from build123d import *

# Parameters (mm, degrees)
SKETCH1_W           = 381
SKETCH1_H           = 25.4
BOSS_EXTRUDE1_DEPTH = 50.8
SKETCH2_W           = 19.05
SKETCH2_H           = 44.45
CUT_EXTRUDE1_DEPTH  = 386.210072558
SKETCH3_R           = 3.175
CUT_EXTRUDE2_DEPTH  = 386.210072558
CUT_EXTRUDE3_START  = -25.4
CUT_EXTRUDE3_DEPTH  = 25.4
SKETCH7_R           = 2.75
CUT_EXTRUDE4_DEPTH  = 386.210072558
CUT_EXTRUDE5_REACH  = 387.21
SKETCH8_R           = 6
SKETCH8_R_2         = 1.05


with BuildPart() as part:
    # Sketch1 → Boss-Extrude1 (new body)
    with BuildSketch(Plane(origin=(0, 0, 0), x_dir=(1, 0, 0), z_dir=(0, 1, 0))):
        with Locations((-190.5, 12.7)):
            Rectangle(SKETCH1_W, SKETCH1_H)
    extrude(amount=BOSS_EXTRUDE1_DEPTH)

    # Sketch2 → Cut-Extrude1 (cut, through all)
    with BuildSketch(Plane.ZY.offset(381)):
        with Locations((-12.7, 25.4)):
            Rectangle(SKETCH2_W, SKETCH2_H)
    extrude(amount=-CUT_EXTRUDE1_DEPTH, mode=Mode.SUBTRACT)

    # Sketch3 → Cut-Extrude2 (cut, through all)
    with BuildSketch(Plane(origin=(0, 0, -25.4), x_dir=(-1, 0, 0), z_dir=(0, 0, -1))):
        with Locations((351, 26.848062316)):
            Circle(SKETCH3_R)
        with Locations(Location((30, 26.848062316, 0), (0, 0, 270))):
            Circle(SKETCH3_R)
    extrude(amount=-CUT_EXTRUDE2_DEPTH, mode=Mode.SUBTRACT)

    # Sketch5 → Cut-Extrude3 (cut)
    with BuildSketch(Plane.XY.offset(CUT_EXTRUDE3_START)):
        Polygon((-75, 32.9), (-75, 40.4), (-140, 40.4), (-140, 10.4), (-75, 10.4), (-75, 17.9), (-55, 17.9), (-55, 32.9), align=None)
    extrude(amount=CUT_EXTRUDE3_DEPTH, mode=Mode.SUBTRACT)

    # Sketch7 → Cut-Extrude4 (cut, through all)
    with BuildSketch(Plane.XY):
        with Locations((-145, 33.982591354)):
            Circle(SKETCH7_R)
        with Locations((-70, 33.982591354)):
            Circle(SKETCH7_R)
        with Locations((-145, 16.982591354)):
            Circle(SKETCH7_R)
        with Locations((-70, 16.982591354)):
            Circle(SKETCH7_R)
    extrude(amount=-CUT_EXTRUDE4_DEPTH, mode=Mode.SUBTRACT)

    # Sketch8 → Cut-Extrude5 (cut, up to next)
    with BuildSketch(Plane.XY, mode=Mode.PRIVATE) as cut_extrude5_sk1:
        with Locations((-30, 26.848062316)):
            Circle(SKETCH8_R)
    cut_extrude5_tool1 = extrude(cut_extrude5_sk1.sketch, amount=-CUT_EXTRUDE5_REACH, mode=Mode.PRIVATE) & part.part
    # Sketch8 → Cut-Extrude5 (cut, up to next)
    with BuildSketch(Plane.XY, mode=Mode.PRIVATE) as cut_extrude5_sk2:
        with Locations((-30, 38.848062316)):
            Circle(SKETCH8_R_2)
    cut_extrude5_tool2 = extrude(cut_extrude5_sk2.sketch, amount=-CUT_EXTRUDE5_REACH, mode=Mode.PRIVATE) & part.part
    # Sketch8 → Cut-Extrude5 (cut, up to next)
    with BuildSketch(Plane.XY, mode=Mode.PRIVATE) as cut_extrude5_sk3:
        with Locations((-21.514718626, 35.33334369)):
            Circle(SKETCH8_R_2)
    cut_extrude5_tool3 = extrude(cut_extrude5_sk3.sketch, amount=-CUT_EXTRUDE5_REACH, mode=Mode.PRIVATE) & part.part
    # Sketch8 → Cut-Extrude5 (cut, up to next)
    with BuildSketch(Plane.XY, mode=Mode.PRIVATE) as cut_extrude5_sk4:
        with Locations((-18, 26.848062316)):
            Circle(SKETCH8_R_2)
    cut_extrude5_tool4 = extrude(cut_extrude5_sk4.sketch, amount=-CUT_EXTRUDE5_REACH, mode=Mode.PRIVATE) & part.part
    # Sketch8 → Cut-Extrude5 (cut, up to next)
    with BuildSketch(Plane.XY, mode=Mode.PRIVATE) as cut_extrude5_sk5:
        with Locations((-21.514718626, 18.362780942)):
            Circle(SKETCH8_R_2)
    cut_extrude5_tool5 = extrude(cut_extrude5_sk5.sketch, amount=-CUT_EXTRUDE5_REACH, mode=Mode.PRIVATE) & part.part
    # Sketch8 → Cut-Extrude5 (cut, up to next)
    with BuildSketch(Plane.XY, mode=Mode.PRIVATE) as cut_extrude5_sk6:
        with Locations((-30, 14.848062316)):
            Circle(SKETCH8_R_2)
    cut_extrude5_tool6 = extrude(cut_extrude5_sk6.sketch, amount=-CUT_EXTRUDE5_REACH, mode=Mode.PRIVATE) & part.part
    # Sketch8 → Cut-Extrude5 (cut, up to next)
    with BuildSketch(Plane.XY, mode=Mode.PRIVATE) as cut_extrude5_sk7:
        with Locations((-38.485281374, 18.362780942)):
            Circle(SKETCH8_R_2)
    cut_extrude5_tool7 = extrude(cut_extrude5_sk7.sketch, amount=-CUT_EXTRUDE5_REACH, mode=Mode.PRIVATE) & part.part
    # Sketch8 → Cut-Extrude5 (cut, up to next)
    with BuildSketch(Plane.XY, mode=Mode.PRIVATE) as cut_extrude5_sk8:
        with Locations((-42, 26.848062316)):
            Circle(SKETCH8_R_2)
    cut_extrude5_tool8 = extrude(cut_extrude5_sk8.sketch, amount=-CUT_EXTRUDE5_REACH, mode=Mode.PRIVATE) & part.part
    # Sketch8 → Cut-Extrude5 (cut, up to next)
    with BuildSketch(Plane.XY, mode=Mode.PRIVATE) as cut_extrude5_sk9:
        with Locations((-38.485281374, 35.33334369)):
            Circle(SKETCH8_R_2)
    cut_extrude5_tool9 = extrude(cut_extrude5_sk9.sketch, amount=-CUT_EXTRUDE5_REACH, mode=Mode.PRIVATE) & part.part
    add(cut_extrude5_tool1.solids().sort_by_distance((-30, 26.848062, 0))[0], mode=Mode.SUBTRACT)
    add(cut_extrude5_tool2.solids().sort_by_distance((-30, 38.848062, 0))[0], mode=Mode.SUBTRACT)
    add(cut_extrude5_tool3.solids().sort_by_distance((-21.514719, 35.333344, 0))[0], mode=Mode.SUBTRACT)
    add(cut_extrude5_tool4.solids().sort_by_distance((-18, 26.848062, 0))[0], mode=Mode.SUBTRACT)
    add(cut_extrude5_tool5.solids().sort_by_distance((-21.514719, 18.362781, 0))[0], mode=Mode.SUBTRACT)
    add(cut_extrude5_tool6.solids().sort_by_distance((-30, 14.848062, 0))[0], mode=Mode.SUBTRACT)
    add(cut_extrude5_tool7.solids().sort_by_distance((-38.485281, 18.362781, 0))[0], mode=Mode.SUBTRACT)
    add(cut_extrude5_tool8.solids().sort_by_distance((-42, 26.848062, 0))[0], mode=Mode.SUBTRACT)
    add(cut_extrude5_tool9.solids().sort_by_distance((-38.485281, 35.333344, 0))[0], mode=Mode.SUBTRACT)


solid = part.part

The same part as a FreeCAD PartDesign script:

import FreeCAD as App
import Part
import Sketcher

V = App.Vector

doc = App.newDocument("Part")
body = doc.addObject("PartDesign::Body", "Body")

# Sketch on XZ plane
sketch1 = doc.addObject("Sketcher::SketchObject", "Sketch")
body.addObject(sketch1)
sketch1.AttachmentSupport = (doc.XZ_Plane, [""])
sketch1.MapMode = "FlatFace"
sketch1.addGeometry(Part.LineSegment(V(-381, -25, 0), V(-381, 0, 0)), False)
sketch1.addGeometry(Part.LineSegment(V(-381, 0, 0), V(0, 0, 0)), False)
sketch1.addGeometry(Part.LineSegment(V(0, 0, 0), V(0, -25, 0)), False)
sketch1.addGeometry(Part.LineSegment(V(0, -25, 0), V(-381, -25, 0)), False)
sketch1.addConstraint(Sketcher.Constraint("Coincident", 0, 2, 1, 1))
sketch1.addConstraint(Sketcher.Constraint("Coincident", 1, 2, 2, 1))
sketch1.addConstraint(Sketcher.Constraint("Coincident", 2, 2, 3, 1))
sketch1.addConstraint(Sketcher.Constraint("Coincident", 3, 2, 0, 1))
sketch1.addConstraint(Sketcher.Constraint("Vertical", 0))
sketch1.addConstraint(Sketcher.Constraint("Horizontal", 1))
sketch1.addConstraint(Sketcher.Constraint("Vertical", 2))
sketch1.addConstraint(Sketcher.Constraint("Horizontal", 3))
sketch1.addConstraint(Sketcher.Constraint("Coincident", 1, 2, -1, 1))
sketch1.addConstraint(Sketcher.Constraint("DistanceX", 1, 1, 1, 2, 381.0))
sketch1.addConstraint(Sketcher.Constraint("DistanceY", 0, 1, 0, 2, 25.4))
pad1 = doc.addObject("PartDesign::Pad", "Pad")
body.addObject(pad1)
pad1.Profile = sketch1
pad1.Length = 50.8
pad1.Reversed = True

# Sketch on YZ plane
sketch2 = doc.addObject("Sketcher::SketchObject", "Sketch001")
body.addObject(sketch2)
sketch2.AttachmentSupport = (doc.YZ_Plane, [""])
sketch2.MapMode = "FlatFace"
sketch2.AttachmentOffset = App.Placement(V(0, 0, -381), App.Rotation())
sketch2.addGeometry(Part.LineSegment(V(48, -22, 0), V(3, -22, 0)), False)
sketch2.addGeometry(Part.LineSegment(V(3, -22, 0), V(3, -3, 0)), False)
sketch2.addGeometry(Part.LineSegment(V(3, -3, 0), V(48, -3, 0)), False)
sketch2.addGeometry(Part.LineSegment(V(48, -3, 0), V(48, -22, 0)), False)
sketch2.addConstraint(Sketcher.Constraint("Coincident", 0, 2, 1, 1))
sketch2.addConstraint(Sketcher.Constraint("Coincident", 1, 2, 2, 1))
sketch2.addConstraint(Sketcher.Constraint("Coincident", 2, 2, 3, 1))
sketch2.addConstraint(Sketcher.Constraint("Coincident", 3, 2, 0, 1))
sketch2.addConstraint(Sketcher.Constraint("Horizontal", 0))
sketch2.addConstraint(Sketcher.Constraint("Vertical", 1))
sketch2.addConstraint(Sketcher.Constraint("Horizontal", 2))
sketch2.addConstraint(Sketcher.Constraint("Vertical", 3))
sketch2.addConstraint(Sketcher.Constraint("DistanceX", 0, 2, 0, 1, 44.45))
sketch2.addConstraint(Sketcher.Constraint("DistanceY", 1, 1, 1, 2, 19.05))
sketch2.addConstraint(Sketcher.Constraint("DistanceX", -1, 1, 0, 2, 3.175))
sketch2.addConstraint(Sketcher.Constraint("DistanceY", 0, 2, -1, 1, 22.225))
pocket1 = doc.addObject("PartDesign::Pocket", "Pocket")
body.addObject(pocket1)
pocket1.Profile = sketch2
pocket1.Type = "ThroughAll"
pocket1.Reversed = True

# Sketch on XY plane
sketch3 = doc.addObject("Sketcher::SketchObject", "Sketch002")
body.addObject(sketch3)
sketch3.AttachmentSupport = (doc.XY_Plane, [""])
sketch3.MapMode = "FlatFace"
sketch3.AttachmentOffset = App.Placement(V(0, 0, -25.4), App.Rotation())
sketch3.addGeometry(Part.Circle(V(-351, 26.8, 0), V(0, 0, 1), 3.2), False)
sketch3.addGeometry(Part.Circle(V(-30, 26.8, 0), V(0, 0, 1), 3.2), False)
sketch3.addConstraint(Sketcher.Constraint("Equal", 0, 1))
sketch3.addConstraint(Sketcher.Constraint("Horizontal", 0, 3, 1, 3))
sketch3.addConstraint(Sketcher.Constraint("Diameter", 0, 6.35))
sketch3.addConstraint(Sketcher.Constraint("DistanceX", 0, 3, -1, 1, 351.0))
sketch3.addConstraint(Sketcher.Constraint("DistanceX", 1, 3, -1, 1, 30.0))
sketch3.addConstraint(Sketcher.Constraint("DistanceY", -1, 1, 0, 3, 26.848062))
pocket2 = doc.addObject("PartDesign::Pocket", "Pocket001")
body.addObject(pocket2)
pocket2.Profile = sketch3
pocket2.Type = "ThroughAll"
pocket2.Reversed = True

# Sketch on XY plane
sketch4 = doc.addObject("Sketcher::SketchObject", "Sketch003")
body.addObject(sketch4)
sketch4.AttachmentSupport = (doc.XY_Plane, [""])
sketch4.MapMode = "FlatFace"
sketch4.AttachmentOffset = App.Placement(V(0, 0, -25.4), App.Rotation())
sketch4.addGeometry(Part.LineSegment(V(-75, 33, 0), V(-75, 40, 0)), False)
sketch4.addGeometry(Part.LineSegment(V(-75, 40, 0), V(-140, 40, 0)), False)
sketch4.addGeometry(Part.LineSegment(V(-140, 40, 0), V(-140, 10, 0)), False)
sketch4.addGeometry(Part.LineSegment(V(-140, 10, 0), V(-75, 10, 0)), False)
sketch4.addGeometry(Part.LineSegment(V(-75, 10, 0), V(-75, 18, 0)), False)
sketch4.addGeometry(Part.LineSegment(V(-75, 18, 0), V(-55, 18, 0)), False)
sketch4.addGeometry(Part.LineSegment(V(-55, 18, 0), V(-55, 33, 0)), False)
sketch4.addGeometry(Part.LineSegment(V(-55, 33, 0), V(-75, 33, 0)), False)
sketch4.addConstraint(Sketcher.Constraint("Coincident", 0, 2, 1, 1))
sketch4.addConstraint(Sketcher.Constraint("Coincident", 1, 2, 2, 1))
sketch4.addConstraint(Sketcher.Constraint("Coincident", 2, 2, 3, 1))
sketch4.addConstraint(Sketcher.Constraint("Coincident", 3, 2, 4, 1))
sketch4.addConstraint(Sketcher.Constraint("Coincident", 4, 2, 5, 1))
sketch4.addConstraint(Sketcher.Constraint("Coincident", 5, 2, 6, 1))
sketch4.addConstraint(Sketcher.Constraint("Coincident", 6, 2, 7, 1))
sketch4.addConstraint(Sketcher.Constraint("Coincident", 7, 2, 0, 1))
sketch4.addConstraint(Sketcher.Constraint("Vertical", 0))
sketch4.addConstraint(Sketcher.Constraint("Horizontal", 1))
sketch4.addConstraint(Sketcher.Constraint("Vertical", 2))
sketch4.addConstraint(Sketcher.Constraint("Horizontal", 3))
sketch4.addConstraint(Sketcher.Constraint("Vertical", 4))
sketch4.addConstraint(Sketcher.Constraint("Horizontal", 5))
sketch4.addConstraint(Sketcher.Constraint("Vertical", 6))
sketch4.addConstraint(Sketcher.Constraint("Horizontal", 7))
sketch4.addConstraint(Sketcher.Constraint("Vertical", 0, 2, 3, 2))
sketch4.addConstraint(Sketcher.Constraint("Equal", 0, 4))
sketch4.addConstraint(Sketcher.Constraint("DistanceX", 1, 2, 1, 1, 65.0))
sketch4.addConstraint(Sketcher.Constraint("DistanceX", 5, 1, 5, 2, 20.0))
sketch4.addConstraint(Sketcher.Constraint("DistanceY", 2, 2, 2, 1, 30.0))
sketch4.addConstraint(Sketcher.Constraint("DistanceY", 6, 1, 6, 2, 15.0))
sketch4.addConstraint(Sketcher.Constraint("DistanceX", 0, 2, -1, 1, 75.0))
sketch4.addConstraint(Sketcher.Constraint("DistanceY", -1, 1, 0, 2, 40.4))
pocket3 = doc.addObject("PartDesign::Pocket", "Pocket002")
body.addObject(pocket3)
pocket3.Profile = sketch4
pocket3.Length = 25.4
pocket3.Reversed = True

# Sketch on XY plane
sketch5 = doc.addObject("Sketcher::SketchObject", "Sketch004")
body.addObject(sketch5)
sketch5.AttachmentSupport = (doc.XY_Plane, [""])
sketch5.MapMode = "FlatFace"
sketch5.addGeometry(Part.Circle(V(-145, 34, 0), V(0, 0, 1), 2.8), False)
sketch5.addGeometry(Part.Circle(V(-70, 34, 0), V(0, 0, 1), 2.8), False)
sketch5.addGeometry(Part.Circle(V(-145, 17, 0), V(0, 0, 1), 2.8), False)
sketch5.addGeometry(Part.Circle(V(-70, 17, 0), V(0, 0, 1), 2.8), False)
sketch5.addConstraint(Sketcher.Constraint("Equal", 0, 1))
sketch5.addConstraint(Sketcher.Constraint("Equal", 1, 2))
sketch5.addConstraint(Sketcher.Constraint("Equal", 2, 3))
sketch5.addConstraint(Sketcher.Constraint("Horizontal", 0, 3, 1, 3))
sketch5.addConstraint(Sketcher.Constraint("Horizontal", 2, 3, 3, 3))
sketch5.addConstraint(Sketcher.Constraint("Vertical", 0, 3, 2, 3))
sketch5.addConstraint(Sketcher.Constraint("Vertical", 1, 3, 3, 3))
sketch5.addConstraint(Sketcher.Constraint("Diameter", 0, 5.5))
sketch5.addConstraint(Sketcher.Constraint("DistanceX", 0, 3, -1, 1, 145.0))
sketch5.addConstraint(Sketcher.Constraint("DistanceX", 1, 3, -1, 1, 70.0))
sketch5.addConstraint(Sketcher.Constraint("DistanceY", 2, 3, 0, 3, 17.0))
sketch5.addConstraint(Sketcher.Constraint("DistanceY", -1, 1, 0, 3, 33.982591))
pocket4 = doc.addObject("PartDesign::Pocket", "Pocket003")
body.addObject(pocket4)
pocket4.Profile = sketch5
pocket4.Type = "ThroughAll"

# Sketch on XY plane
sketch6 = doc.addObject("Sketcher::SketchObject", "Sketch005")
body.addObject(sketch6)
sketch6.AttachmentSupport = (doc.XY_Plane, [""])
sketch6.MapMode = "FlatFace"
sketch6.addGeometry(Part.Circle(V(-30, 27, 0), V(0, 0, 1), 6), False)
sketch6.addConstraint(Sketcher.Constraint("Diameter", 0, 12.0))
sketch6.addConstraint(Sketcher.Constraint("DistanceX", 0, 3, -1, 1, 30.0))
sketch6.addConstraint(Sketcher.Constraint("DistanceY", -1, 1, 0, 3, 26.848062))
pocket5 = doc.addObject("PartDesign::Pocket", "Pocket004")
body.addObject(pocket5)
pocket5.Profile = sketch6
pocket5.Length = 3.175

# Sketch on XY plane
sketch7 = doc.addObject("Sketcher::SketchObject", "Sketch006")
body.addObject(sketch7)
sketch7.AttachmentSupport = (doc.XY_Plane, [""])
sketch7.MapMode = "FlatFace"
sketch7.addGeometry(Part.Circle(V(-30, 38.8, 0), V(0, 0, 1), 1.1), False)
sketch7.addConstraint(Sketcher.Constraint("Diameter", 0, 2.1))
sketch7.addConstraint(Sketcher.Constraint("DistanceX", 0, 3, -1, 1, 30.0))
sketch7.addConstraint(Sketcher.Constraint("DistanceY", -1, 1, 0, 3, 38.848062))
pocket6 = doc.addObject("PartDesign::Pocket", "Pocket005")
body.addObject(pocket6)
pocket6.Profile = sketch7
pocket6.Type = "UpToFirst"

# Sketch on XY plane
sketch8 = doc.addObject("Sketcher::SketchObject", "Sketch007")
body.addObject(sketch8)
sketch8.AttachmentSupport = (doc.XY_Plane, [""])
sketch8.MapMode = "FlatFace"
sketch8.addGeometry(Part.Circle(V(-21.5, 35.3, 0), V(0, 0, 1), 1.1), False)
sketch8.addConstraint(Sketcher.Constraint("Diameter", 0, 2.1))
sketch8.addConstraint(Sketcher.Constraint("DistanceX", 0, 3, -1, 1, 21.514719))
sketch8.addConstraint(Sketcher.Constraint("DistanceY", -1, 1, 0, 3, 35.333344))
pocket7 = doc.addObject("PartDesign::Pocket", "Pocket006")
body.addObject(pocket7)
pocket7.Profile = sketch8
pocket7.Type = "UpToFirst"

# Sketch on XY plane
sketch9 = doc.addObject("Sketcher::SketchObject", "Sketch008")
body.addObject(sketch9)
sketch9.AttachmentSupport = (doc.XY_Plane, [""])
sketch9.MapMode = "FlatFace"
sketch9.addGeometry(Part.Circle(V(-18, 26.8, 0), V(0, 0, 1), 1.1), False)
sketch9.addConstraint(Sketcher.Constraint("Diameter", 0, 2.1))
sketch9.addConstraint(Sketcher.Constraint("DistanceX", 0, 3, -1, 1, 18.0))
sketch9.addConstraint(Sketcher.Constraint("DistanceY", -1, 1, 0, 3, 26.848062))
pocket8 = doc.addObject("PartDesign::Pocket", "Pocket007")
body.addObject(pocket8)
pocket8.Profile = sketch9
pocket8.Type = "UpToFirst"

# Sketch on XY plane
sketch10 = doc.addObject("Sketcher::SketchObject", "Sketch009")
body.addObject(sketch10)
sketch10.AttachmentSupport = (doc.XY_Plane, [""])
sketch10.MapMode = "FlatFace"
sketch10.addGeometry(Part.Circle(V(-21.5, 18.4, 0), V(0, 0, 1), 1.1), False)
sketch10.addConstraint(Sketcher.Constraint("Diameter", 0, 2.1))
sketch10.addConstraint(Sketcher.Constraint("DistanceX", 0, 3, -1, 1, 21.514719))
sketch10.addConstraint(Sketcher.Constraint("DistanceY", -1, 1, 0, 3, 18.362781))
pocket9 = doc.addObject("PartDesign::Pocket", "Pocket008")
body.addObject(pocket9)
pocket9.Profile = sketch10
pocket9.Type = "UpToFirst"

# Sketch on XY plane
sketch11 = doc.addObject("Sketcher::SketchObject", "Sketch010")
body.addObject(sketch11)
sketch11.AttachmentSupport = (doc.XY_Plane, [""])
sketch11.MapMode = "FlatFace"
sketch11.addGeometry(Part.Circle(V(-30, 14.8, 0), V(0, 0, 1), 1.1), False)
sketch11.addConstraint(Sketcher.Constraint("Diameter", 0, 2.1))
sketch11.addConstraint(Sketcher.Constraint("DistanceX", 0, 3, -1, 1, 30.0))
sketch11.addConstraint(Sketcher.Constraint("DistanceY", -1, 1, 0, 3, 14.848062))
pocket10 = doc.addObject("PartDesign::Pocket", "Pocket009")
body.addObject(pocket10)
pocket10.Profile = sketch11
pocket10.Type = "UpToFirst"

# Sketch on XY plane
sketch12 = doc.addObject("Sketcher::SketchObject", "Sketch011")
body.addObject(sketch12)
sketch12.AttachmentSupport = (doc.XY_Plane, [""])
sketch12.MapMode = "FlatFace"
sketch12.addGeometry(Part.Circle(V(-38.5, 18.4, 0), V(0, 0, 1), 1.1), False)
sketch12.addConstraint(Sketcher.Constraint("Diameter", 0, 2.1))
sketch12.addConstraint(Sketcher.Constraint("DistanceX", 0, 3, -1, 1, 38.485281))
sketch12.addConstraint(Sketcher.Constraint("DistanceY", -1, 1, 0, 3, 18.362781))
pocket11 = doc.addObject("PartDesign::Pocket", "Pocket010")
body.addObject(pocket11)
pocket11.Profile = sketch12
pocket11.Type = "UpToFirst"

# Sketch on XY plane
sketch13 = doc.addObject("Sketcher::SketchObject", "Sketch012")
body.addObject(sketch13)
sketch13.AttachmentSupport = (doc.XY_Plane, [""])
sketch13.MapMode = "FlatFace"
sketch13.addGeometry(Part.Circle(V(-42, 26.8, 0), V(0, 0, 1), 1.1), False)
sketch13.addConstraint(Sketcher.Constraint("Diameter", 0, 2.1))
sketch13.addConstraint(Sketcher.Constraint("DistanceX", 0, 3, -1, 1, 42.0))
sketch13.addConstraint(Sketcher.Constraint("DistanceY", -1, 1, 0, 3, 26.848062))
pocket12 = doc.addObject("PartDesign::Pocket", "Pocket011")
body.addObject(pocket12)
pocket12.Profile = sketch13
pocket12.Type = "UpToFirst"

# Sketch on XY plane
sketch14 = doc.addObject("Sketcher::SketchObject", "Sketch013")
body.addObject(sketch14)
sketch14.AttachmentSupport = (doc.XY_Plane, [""])
sketch14.MapMode = "FlatFace"
sketch14.addGeometry(Part.Circle(V(-38.5, 35.3, 0), V(0, 0, 1), 1.1), False)
sketch14.addConstraint(Sketcher.Constraint("Diameter", 0, 2.1))
sketch14.addConstraint(Sketcher.Constraint("DistanceX", 0, 3, -1, 1, 38.485281))
sketch14.addConstraint(Sketcher.Constraint("DistanceY", -1, 1, 0, 3, 35.333344))
pocket13 = doc.addObject("PartDesign::Pocket", "Pocket012")
body.addObject(pocket13)
pocket13.Profile = sketch14
pocket13.Type = "UpToFirst"

doc.recompute()
